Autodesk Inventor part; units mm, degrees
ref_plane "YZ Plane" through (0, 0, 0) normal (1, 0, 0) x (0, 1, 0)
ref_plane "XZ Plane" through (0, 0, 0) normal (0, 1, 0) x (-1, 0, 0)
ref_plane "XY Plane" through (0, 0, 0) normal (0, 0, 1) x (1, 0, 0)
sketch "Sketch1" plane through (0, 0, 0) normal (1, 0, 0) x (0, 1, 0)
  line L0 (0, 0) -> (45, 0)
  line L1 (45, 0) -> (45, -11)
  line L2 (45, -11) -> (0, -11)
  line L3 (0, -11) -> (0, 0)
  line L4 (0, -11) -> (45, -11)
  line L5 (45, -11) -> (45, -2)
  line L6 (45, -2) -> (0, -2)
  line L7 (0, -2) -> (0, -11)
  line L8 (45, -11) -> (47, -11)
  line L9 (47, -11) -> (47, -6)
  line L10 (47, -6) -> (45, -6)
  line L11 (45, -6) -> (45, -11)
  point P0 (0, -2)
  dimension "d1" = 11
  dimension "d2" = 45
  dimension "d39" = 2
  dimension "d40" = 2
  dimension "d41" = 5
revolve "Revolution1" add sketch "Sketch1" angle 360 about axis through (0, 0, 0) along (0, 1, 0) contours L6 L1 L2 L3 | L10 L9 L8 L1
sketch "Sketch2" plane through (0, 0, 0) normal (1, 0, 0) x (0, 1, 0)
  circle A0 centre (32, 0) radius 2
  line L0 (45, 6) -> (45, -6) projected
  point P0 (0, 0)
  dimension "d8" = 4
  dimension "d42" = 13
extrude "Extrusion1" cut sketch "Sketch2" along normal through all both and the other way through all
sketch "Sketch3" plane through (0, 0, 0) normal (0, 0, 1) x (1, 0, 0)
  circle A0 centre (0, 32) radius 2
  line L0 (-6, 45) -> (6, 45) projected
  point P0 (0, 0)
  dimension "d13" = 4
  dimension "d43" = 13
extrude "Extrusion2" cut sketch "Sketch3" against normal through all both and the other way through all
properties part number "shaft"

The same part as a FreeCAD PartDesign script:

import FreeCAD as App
import Part
import Sketcher
Q = App.Units.Quantity


def add_polygon(sketch, points):
    """Adds a closed chain of lines whose ends are joined by coincident constraints."""
    first, n = sketch.GeometryCount, len(points)
    for a, b in zip(points, points[1:] + points[:1]):
        sketch.addGeometry(Part.LineSegment(App.Vector(*a, 0), App.Vector(*b, 0)), False)
    for i in range(n):
        sketch.addConstraint(Sketcher.Constraint("Coincident", first + i, 2, first + (i + 1) % n, 1))

doc = App.newDocument("Part")
params = doc.addObject("Spreadsheet::Sheet", "Params")
for row, (alias, value) in enumerate([
    ("sketch1_width", "45 mm"),
    ("sketch1_width2", "2 mm"),
    ("sketch1_height", "5 mm"),
    ("revolution_angle", "360 deg"),
    ("sketch2_diameter", "4 mm"),
    ("sketch3_diameter", "4 mm"),
], start=1):
    params.set(f"A{row}", alias)
    params.set(f"B{row}", "=" + value)
    params.setAlias(f"B{row}", alias)

body = doc.addObject("PartDesign::Body", "Body")

# Sketch on YZ plane
sketch1 = doc.addObject("Sketcher::SketchObject", "Sketch")
body.addObject(sketch1)
sketch1.AttachmentSupport = (doc.YZ_Plane, [""])
sketch1.MapMode = "FlatFace"
add_polygon(sketch1, [(45, -2), (0, -2), (0, -11), (47, -11), (47, -6), (45, -6)])  # lines 0-5
sketch1.addConstraint(Sketcher.Constraint("Horizontal", 0))
sketch1.addConstraint(Sketcher.Constraint("Vertical", 1))
sketch1.addConstraint(Sketcher.Constraint("Horizontal", 2))
sketch1.addConstraint(Sketcher.Constraint("Vertical", 3))
sketch1.addConstraint(Sketcher.Constraint("Horizontal", 4))
sketch1.addConstraint(Sketcher.Constraint("Vertical", 5))
sketch1.addConstraint(Sketcher.Constraint("PointOnObject", 0, 2, -2))
sketch1.addConstraint(Sketcher.Constraint("DistanceX", 0, 2, 0, 1, Q("45 mm")))
sketch1.addConstraint(Sketcher.Constraint("DistanceX", 4, 2, 4, 1, Q("2 mm")))
sketch1.addConstraint(Sketcher.Constraint("DistanceY", 3, 1, 3, 2, Q("5 mm")))
sketch1.addConstraint(Sketcher.Constraint("DistanceY", 0, 2, -1, 1, Q("2 mm")))
sketch1.addConstraint(Sketcher.Constraint("DistanceY", 1, 2, -1, 1, Q("11 mm")))
sketch1.setExpression("Constraints[13]", "Params.sketch1_width")
sketch1.setExpression("Constraints[14]", "Params.sketch1_width2")
sketch1.setExpression("Constraints[15]", "Params.sketch1_height")
revolution = doc.addObject("PartDesign::Revolution", "Revolution")
body.addObject(revolution)
revolution.Profile = sketch1
revolution.ReferenceAxis = (sketch1, ["H_Axis"])
revolution.setExpression("Angle", "Params.revolution_angle")

# Sketch on YZ plane
sketch2 = doc.addObject("Sketcher::SketchObject", "Sketch001")
body.addObject(sketch2)
sketch2.AttachmentSupport = (doc.YZ_Plane, [""])
sketch2.MapMode = "FlatFace"
sketch2.addGeometry(Part.Circle(App.Vector(32, 0, 0), App.Vector(0, 0, 1), 2), False)
sketch2.addConstraint(Sketcher.Constraint("PointOnObject", 0, 3, -1))
sketch2.addConstraint(Sketcher.Constraint("Diameter", 0, Q("4 mm")))
sketch2.addConstraint(Sketcher.Constraint("DistanceX", -1, 1, 0, 3, Q("32 mm")))
sketch2.setExpression("Constraints[1]", "Params.sketch2_diameter")
pocket1 = doc.addObject("PartDesign::Pocket", "Pocket")
body.addObject(pocket1)
pocket1.Profile = sketch2
pocket1.Type = "ThroughAll"
pocket1.Midplane = True

# Sketch on XY plane
sketch3 = doc.addObject("Sketcher::SketchObject", "Sketch002")
body.addObject(sketch3)
sketch3.AttachmentSupport = (doc.XY_Plane, [""])
sketch3.MapMode = "FlatFace"
sketch3.addGeometry(Part.Circle(App.Vector(0, 32, 0), App.Vector(0, 0, 1), 2), False)
sketch3.addConstraint(Sketcher.Constraint("PointOnObject", 0, 3, -2))
sketch3.addConstraint(Sketcher.Constraint("Diameter", 0, Q("4 mm")))
sketch3.addConstraint(Sketcher.Constraint("DistanceY", -1, 1, 0, 3, Q("32 mm")))
sketch3.setExpression("Constraints[1]", "Params.sketch3_diameter")
pocket2 = doc.addObject("PartDesign::Pocket", "Pocket001")
body.addObject(pocket2)
pocket2.Profile = sketch3
pocket2.Type = "ThroughAll"
pocket2.Midplane = True

doc.recompute()
